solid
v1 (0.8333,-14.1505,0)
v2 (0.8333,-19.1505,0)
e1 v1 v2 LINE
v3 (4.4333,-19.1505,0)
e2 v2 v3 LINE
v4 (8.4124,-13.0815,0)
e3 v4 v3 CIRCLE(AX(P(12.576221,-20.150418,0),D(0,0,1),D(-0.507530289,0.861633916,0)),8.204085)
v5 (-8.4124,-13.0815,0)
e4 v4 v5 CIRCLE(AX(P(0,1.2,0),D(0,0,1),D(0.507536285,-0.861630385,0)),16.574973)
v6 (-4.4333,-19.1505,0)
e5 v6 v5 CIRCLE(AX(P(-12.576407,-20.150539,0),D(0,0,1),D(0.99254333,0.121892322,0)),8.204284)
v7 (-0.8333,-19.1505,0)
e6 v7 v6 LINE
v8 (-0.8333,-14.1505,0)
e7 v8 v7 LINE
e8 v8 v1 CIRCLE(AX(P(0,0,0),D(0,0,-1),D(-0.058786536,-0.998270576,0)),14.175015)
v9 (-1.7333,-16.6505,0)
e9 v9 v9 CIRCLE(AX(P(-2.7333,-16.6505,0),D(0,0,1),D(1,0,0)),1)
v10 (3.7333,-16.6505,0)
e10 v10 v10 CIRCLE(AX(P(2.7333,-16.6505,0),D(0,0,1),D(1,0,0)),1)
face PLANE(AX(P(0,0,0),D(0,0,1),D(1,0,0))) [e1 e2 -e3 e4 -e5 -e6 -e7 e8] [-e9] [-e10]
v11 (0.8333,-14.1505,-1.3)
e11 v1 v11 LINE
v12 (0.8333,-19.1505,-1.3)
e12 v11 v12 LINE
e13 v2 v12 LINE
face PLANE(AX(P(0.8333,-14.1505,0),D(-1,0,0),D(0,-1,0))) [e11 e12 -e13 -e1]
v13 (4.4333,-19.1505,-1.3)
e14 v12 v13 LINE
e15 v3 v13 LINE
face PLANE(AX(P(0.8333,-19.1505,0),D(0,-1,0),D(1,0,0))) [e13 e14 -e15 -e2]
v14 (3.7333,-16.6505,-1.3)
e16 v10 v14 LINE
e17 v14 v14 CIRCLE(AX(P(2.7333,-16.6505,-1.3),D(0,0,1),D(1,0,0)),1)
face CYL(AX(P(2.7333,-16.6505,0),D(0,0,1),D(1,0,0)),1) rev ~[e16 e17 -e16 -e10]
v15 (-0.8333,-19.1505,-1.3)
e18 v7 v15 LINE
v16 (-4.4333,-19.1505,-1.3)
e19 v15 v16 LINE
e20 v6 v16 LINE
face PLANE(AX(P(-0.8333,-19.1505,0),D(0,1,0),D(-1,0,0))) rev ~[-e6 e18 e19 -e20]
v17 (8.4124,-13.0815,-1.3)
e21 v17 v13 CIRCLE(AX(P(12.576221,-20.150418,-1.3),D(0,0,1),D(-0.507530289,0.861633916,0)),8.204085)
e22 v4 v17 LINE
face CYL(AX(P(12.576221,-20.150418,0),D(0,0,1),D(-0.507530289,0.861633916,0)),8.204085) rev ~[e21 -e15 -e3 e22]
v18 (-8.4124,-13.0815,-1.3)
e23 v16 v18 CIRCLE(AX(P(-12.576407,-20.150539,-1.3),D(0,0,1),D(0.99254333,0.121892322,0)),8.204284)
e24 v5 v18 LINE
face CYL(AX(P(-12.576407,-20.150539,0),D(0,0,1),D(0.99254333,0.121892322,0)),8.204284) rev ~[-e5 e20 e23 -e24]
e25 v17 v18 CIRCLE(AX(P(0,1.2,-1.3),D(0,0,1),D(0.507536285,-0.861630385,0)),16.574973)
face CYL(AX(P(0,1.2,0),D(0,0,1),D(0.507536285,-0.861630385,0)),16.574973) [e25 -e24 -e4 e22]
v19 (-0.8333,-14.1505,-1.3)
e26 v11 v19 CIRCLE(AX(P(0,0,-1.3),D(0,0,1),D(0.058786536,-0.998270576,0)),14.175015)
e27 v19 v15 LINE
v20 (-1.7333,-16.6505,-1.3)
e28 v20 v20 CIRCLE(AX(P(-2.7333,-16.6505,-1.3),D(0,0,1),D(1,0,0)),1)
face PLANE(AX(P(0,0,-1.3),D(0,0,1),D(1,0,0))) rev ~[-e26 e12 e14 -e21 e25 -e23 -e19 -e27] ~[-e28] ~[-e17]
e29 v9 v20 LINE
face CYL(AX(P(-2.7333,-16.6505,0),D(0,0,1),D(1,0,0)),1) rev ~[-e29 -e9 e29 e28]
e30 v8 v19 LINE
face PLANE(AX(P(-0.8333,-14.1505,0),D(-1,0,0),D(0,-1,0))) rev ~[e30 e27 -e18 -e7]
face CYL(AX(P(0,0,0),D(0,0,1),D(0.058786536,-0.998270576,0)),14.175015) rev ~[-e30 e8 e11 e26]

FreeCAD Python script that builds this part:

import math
import FreeCAD as App
import Part
import Sketcher
from FreeCAD import Vector
Q = App.Units.Quantity

doc = App.newDocument("Part")
body = doc.addObject("PartDesign::Body", "Body")

sketch1 = body.newObject("Sketcher::SketchObject", "Sketch")
sketch1.AttachmentSupport = (doc.getObject("XY_Plane"), [""])
sketch1.MapMode = "FlatFace"
sketch1.addGeometry(Part.LineSegment(Vector(-4.4, -19.2, 0), Vector(-0.8, -19.2, 0)), False)
sketch1.addGeometry(Part.LineSegment(Vector(-0.8, -19.2, 0), Vector(-0.8, -14.2, 0)), False)
sketch1.addGeometry(Part.ArcOfCircle(Part.Circle(Vector(0, 0, 0), Vector(0, 0, 1), 14.2), math.radians(-87), math.radians(267)), False)
sketch1.addGeometry(Part.LineSegment(Vector(0.8, -14.2, 0), Vector(0.8, -19.2, 0)), False)
sketch1.addGeometry(Part.LineSegment(Vector(0.8, -19.2, 0), Vector(4.4, -19.2, 0)), False)
sketch1.addGeometry(Part.ArcOfCircle(Part.Circle(Vector(12.6, -20.2, 0), Vector(0, 0, 1), 8.2), math.radians(120), math.radians(173)), False)
sketch1.addGeometry(Part.ArcOfCircle(Part.Circle(Vector(0, 1.2, 0), Vector(0, 0, 1), 16.6), math.radians(-60), math.radians(240)), False)
sketch1.addGeometry(Part.ArcOfCircle(Part.Circle(Vector(-12.6, -20.2, 0), Vector(0, 0, 1), 8.2), math.radians(7), math.radians(60)), False)
sketch1.addConstraint(Sketcher.Constraint("Coincident", 0, 2, 1, 1))
sketch1.addConstraint(Sketcher.Constraint("Coincident", 1, 2, 2, 2))
sketch1.addConstraint(Sketcher.Constraint("Coincident", 2, 1, 3, 1))
sketch1.addConstraint(Sketcher.Constraint("Coincident", 3, 2, 4, 1))
sketch1.addConstraint(Sketcher.Constraint("Coincident", 4, 2, 5, 2))
sketch1.addConstraint(Sketcher.Constraint("Tangent", 5, 1, 6, 1))
sketch1.addConstraint(Sketcher.Constraint("Tangent", 6, 2, 7, 2))
sketch1.addConstraint(Sketcher.Constraint("Coincident", 7, 1, 0, 1))
sketch1.addConstraint(Sketcher.Constraint("Horizontal", 0))
sketch1.addConstraint(Sketcher.Constraint("Vertical", 1))
sketch1.addConstraint(Sketcher.Constraint("Vertical", 3))
sketch1.addConstraint(Sketcher.Constraint("Horizontal", 4))
sketch1.addConstraint(Sketcher.Constraint("Coincident", 2, 3, -1, 1))
sketch1.addConstraint(Sketcher.Constraint("Equal", 5, 7))
sketch1.addConstraint(Sketcher.Constraint("Symmetric", 5, 3, 7, 3, -2))
sketch1.addConstraint(Sketcher.Constraint("Symmetric", 0, 2, 3, 2, -2))
sketch1.addConstraint(Sketcher.Constraint("DistanceY", 1, 1, 1, 2, Q("5 mm")))
sketch1.addConstraint(Sketcher.Constraint("DistanceX", 0, 1, 0, 2, Q("3.6 mm")))
sketch1.addConstraint(Sketcher.Constraint("Radius", 2, Q("14.175 mm")))
sketch1.addConstraint(Sketcher.Constraint("DistanceY", 7, 3, 0, 2, Q("1 mm")))
sketch1.addConstraint(Sketcher.Constraint("DistanceY", -1, 1, 6, 3, Q("1.2 mm")))
sketch1.addConstraint(Sketcher.Constraint("Radius", 6, Q("16.575 mm")))
sketch1.addConstraint(Sketcher.Constraint("Radius", 5, Q("8.2042 mm")))
pad1 = body.newObject("PartDesign::Pad", "Pad")
pad1.Profile = sketch1
pad1.Length = 1.3
pad1.Reversed = True

sketch2 = body.newObject("Sketcher::SketchObject", "Sketch001")
sketch2.AttachmentSupport = (doc.getObject("XY_Plane"), [""])
sketch2.MapMode = "FlatFace"
sketch2.addGeometry(Part.Circle(Vector(-2.7, -16.7, 0), Vector(0, 0, 1), 1), False)
sketch2.addGeometry(Part.Circle(Vector(2.7, -16.7, 0), Vector(0, 0, 1), 1), False)
sketch2.addConstraint(Sketcher.Constraint("Equal", 0, 1))
sketch2.addConstraint(Sketcher.Constraint("Symmetric", 0, 3, 1, 3, -2))
sketch2.addConstraint(Sketcher.Constraint("Diameter", 0, Q("2 mm")))
sketch2.addConstraint(Sketcher.Constraint("DistanceX", 0, 3, 1, 3, Q("5.4666 mm")))
sketch2.addConstraint(Sketcher.Constraint("DistanceY", 0, 3, -1, 1, Q("16.6505 mm")))
pocket1 = body.newObject("PartDesign::Pocket", "Pocket")
pocket1.Profile = sketch2
pocket1.Type = "ThroughAll"

doc.recompute()
